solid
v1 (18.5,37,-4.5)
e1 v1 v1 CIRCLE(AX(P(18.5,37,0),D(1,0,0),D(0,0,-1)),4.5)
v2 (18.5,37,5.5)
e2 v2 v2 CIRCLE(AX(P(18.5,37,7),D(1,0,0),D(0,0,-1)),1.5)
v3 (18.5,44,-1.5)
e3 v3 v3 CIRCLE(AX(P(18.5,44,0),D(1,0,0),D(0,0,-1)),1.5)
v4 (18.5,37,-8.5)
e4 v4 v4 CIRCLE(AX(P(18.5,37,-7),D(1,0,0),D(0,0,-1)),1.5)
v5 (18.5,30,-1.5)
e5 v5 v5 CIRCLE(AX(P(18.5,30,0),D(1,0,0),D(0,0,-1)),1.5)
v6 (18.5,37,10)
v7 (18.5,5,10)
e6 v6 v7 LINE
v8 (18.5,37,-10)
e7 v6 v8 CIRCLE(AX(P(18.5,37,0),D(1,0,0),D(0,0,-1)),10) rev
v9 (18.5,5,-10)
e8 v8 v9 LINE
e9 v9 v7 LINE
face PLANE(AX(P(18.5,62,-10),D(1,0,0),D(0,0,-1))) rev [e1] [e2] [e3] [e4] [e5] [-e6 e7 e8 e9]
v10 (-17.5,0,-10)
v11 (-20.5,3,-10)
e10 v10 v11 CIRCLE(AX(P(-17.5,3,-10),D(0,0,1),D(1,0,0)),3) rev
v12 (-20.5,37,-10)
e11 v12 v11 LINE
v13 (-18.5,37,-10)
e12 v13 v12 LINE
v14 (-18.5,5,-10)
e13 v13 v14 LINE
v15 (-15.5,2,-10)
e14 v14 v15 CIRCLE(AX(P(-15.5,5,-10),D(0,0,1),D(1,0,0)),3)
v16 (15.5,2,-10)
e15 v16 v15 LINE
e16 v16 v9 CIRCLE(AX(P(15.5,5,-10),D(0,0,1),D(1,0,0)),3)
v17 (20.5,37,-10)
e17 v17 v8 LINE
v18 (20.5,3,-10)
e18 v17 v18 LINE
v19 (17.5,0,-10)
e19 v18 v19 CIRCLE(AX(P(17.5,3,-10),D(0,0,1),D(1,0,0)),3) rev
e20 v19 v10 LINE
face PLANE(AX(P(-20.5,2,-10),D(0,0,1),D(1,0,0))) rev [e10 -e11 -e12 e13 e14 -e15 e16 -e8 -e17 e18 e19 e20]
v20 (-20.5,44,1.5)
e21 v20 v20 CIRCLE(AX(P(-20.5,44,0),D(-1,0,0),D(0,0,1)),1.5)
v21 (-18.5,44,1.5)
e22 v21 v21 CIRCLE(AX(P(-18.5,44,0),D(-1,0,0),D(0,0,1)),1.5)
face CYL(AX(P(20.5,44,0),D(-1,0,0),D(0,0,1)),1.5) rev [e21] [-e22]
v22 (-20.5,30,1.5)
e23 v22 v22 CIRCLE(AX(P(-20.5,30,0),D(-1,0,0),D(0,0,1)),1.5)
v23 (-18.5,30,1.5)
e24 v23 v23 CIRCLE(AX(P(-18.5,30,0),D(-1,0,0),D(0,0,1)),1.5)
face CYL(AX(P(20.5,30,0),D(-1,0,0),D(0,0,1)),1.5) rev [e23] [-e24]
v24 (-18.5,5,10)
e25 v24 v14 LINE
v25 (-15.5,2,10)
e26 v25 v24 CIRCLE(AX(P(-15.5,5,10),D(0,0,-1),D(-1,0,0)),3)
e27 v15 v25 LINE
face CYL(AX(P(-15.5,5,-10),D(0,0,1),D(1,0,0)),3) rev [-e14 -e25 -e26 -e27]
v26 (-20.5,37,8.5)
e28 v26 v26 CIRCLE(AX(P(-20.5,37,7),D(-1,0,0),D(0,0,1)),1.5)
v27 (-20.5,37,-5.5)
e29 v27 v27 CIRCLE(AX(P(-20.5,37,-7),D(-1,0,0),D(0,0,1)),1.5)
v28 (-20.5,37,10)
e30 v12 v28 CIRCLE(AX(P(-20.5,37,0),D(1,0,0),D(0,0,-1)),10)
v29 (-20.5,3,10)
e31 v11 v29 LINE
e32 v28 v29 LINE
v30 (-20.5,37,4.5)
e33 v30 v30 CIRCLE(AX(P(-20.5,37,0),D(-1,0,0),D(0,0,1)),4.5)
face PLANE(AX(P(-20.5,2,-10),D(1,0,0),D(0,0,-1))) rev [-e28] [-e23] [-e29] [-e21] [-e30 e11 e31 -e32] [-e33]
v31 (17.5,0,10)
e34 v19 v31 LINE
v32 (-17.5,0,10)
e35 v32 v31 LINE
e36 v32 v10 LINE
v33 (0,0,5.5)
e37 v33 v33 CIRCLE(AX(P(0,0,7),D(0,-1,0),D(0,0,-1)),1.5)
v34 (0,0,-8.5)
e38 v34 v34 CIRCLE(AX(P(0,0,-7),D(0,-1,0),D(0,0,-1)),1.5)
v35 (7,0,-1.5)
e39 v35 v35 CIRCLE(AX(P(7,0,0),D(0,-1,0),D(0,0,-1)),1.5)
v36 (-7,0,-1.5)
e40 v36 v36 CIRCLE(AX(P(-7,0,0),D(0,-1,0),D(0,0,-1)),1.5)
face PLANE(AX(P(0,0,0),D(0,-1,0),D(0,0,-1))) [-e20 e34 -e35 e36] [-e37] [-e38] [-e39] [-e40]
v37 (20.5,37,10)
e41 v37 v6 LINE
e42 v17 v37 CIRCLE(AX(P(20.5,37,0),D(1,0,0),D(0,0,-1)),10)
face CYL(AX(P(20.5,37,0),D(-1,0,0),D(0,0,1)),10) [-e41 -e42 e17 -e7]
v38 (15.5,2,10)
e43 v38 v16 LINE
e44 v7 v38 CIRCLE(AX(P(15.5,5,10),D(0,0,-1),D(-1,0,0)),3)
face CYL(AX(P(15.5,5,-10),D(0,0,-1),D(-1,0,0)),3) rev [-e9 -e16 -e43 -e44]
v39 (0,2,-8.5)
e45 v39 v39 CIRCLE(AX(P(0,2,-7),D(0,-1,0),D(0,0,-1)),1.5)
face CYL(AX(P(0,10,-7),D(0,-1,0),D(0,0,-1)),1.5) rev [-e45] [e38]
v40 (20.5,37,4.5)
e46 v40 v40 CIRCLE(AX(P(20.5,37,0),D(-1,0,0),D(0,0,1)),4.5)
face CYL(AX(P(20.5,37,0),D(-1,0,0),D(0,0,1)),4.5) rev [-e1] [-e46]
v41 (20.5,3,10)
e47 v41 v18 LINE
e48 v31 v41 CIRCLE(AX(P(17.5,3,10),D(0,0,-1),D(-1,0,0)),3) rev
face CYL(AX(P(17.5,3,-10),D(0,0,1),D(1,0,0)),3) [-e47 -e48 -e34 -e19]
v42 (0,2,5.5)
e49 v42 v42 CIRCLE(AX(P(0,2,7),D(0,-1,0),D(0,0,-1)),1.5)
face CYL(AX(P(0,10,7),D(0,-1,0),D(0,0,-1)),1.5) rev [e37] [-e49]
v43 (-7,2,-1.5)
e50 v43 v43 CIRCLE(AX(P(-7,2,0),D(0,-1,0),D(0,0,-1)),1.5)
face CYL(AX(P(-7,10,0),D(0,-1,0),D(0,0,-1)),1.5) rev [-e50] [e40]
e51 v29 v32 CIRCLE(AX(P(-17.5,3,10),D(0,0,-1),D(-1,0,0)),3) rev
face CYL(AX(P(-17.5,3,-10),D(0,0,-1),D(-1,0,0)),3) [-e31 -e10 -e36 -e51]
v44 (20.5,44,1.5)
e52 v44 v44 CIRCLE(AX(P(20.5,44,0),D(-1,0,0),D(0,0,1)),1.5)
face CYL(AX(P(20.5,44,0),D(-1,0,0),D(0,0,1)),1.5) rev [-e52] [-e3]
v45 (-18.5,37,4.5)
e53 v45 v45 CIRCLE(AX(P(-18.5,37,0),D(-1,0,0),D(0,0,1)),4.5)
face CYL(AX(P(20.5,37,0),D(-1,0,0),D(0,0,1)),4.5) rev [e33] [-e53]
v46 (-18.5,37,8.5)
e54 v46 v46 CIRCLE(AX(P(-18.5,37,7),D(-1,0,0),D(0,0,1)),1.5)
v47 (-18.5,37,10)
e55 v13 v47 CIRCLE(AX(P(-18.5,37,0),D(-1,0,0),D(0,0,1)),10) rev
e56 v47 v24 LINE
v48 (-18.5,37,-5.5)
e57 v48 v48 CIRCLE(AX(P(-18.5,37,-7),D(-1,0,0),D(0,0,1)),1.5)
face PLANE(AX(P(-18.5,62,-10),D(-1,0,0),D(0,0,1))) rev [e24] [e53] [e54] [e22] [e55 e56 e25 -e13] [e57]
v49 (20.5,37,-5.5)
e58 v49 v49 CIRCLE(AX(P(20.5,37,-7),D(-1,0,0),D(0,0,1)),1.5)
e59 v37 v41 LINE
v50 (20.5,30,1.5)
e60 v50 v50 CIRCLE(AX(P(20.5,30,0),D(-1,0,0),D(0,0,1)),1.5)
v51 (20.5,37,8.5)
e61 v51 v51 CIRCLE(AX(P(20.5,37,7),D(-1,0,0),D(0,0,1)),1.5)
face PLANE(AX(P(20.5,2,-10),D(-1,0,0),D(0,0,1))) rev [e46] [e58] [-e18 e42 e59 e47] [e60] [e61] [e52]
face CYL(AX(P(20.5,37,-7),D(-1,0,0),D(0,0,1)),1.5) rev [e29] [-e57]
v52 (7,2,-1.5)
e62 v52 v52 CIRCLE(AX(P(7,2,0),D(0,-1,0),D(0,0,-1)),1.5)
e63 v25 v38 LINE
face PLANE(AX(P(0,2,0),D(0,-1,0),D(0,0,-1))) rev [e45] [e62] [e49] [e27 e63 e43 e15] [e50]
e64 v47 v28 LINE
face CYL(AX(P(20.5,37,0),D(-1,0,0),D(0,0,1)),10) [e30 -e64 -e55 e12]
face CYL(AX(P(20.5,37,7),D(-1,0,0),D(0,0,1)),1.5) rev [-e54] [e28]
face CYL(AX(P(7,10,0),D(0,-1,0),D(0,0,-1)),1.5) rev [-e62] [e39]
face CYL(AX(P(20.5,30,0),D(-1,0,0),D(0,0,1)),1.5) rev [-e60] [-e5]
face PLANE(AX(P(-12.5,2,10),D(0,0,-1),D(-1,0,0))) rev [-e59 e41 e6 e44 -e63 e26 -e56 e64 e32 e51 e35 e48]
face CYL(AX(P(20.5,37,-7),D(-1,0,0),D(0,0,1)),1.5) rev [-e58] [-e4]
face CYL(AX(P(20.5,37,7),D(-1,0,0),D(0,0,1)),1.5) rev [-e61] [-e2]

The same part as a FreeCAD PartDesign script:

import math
import FreeCAD as App
import Part
import Sketcher

V = App.Vector
Q = App.Units.Quantity


def edges_at(feature, points):
    """Names of the edges that pass closest to the given points."""
    edges = feature.Shape.Edges
    near = lambda p: min(range(len(edges)), key=lambda i: edges[i].distToShape(Part.Vertex(*p))[0])
    return sorted({f"Edge{near(p) + 1}" for p in points})

doc = App.newDocument("Part")
body = doc.addObject("PartDesign::Body", "Body")

# Sketch on XZ plane
sketch1 = body.newObject("Sketcher::SketchObject", "Sketch")
sketch1.AttachmentSupport = (doc.getObject("XZ_Plane"), [""])
sketch1.MapMode = "FlatFace"
sketch1.addGeometry(Part.LineSegment(V(20.5, -10, 0), V(-20.5, -10, 0)), False)
sketch1.addGeometry(Part.LineSegment(V(-20.5, -10, 0), V(-20.5, 10, 0)), False)
sketch1.addGeometry(Part.LineSegment(V(-20.5, 10, 0), V(20.5, 10, 0)), False)
sketch1.addGeometry(Part.LineSegment(V(20.5, 10, 0), V(20.5, -10, 0)), False)
sketch1.addConstraint(Sketcher.Constraint("Coincident", 0, 2, 1, 1))
sketch1.addConstraint(Sketcher.Constraint("Coincident", 1, 2, 2, 1))
sketch1.addConstraint(Sketcher.Constraint("Coincident", 2, 2, 3, 1))
sketch1.addConstraint(Sketcher.Constraint("Coincident", 3, 2, 0, 1))
sketch1.addConstraint(Sketcher.Constraint("Horizontal", 0))
sketch1.addConstraint(Sketcher.Constraint("Vertical", 1))
sketch1.addConstraint(Sketcher.Constraint("Horizontal", 2))
sketch1.addConstraint(Sketcher.Constraint("Vertical", 3))
sketch1.addConstraint(Sketcher.Constraint("Symmetric", 0, 2, 2, 2, -1, 1))
sketch1.addConstraint(Sketcher.Constraint("DistanceX", 0, 2, 0, 1, Q("41 mm")))
sketch1.addConstraint(Sketcher.Constraint("DistanceY", 1, 1, 1, 2, Q("20 mm")))
pad1 = body.newObject("PartDesign::Pad", "Pad")
pad1.Profile = sketch1
pad1.Length = 2
pad1.Reversed = True

# Sketch on XZ plane
sketch2 = body.newObject("Sketcher::SketchObject", "Sketch001")
sketch2.AttachmentSupport = (doc.getObject("XZ_Plane"), [""])
sketch2.MapMode = "FlatFace"
sketch2.AttachmentOffset = App.Placement(V(0, 0, -2), App.Rotation())
sketch2.addGeometry(Part.LineSegment(V(-20.5, -10, 0), V(-20.5, 10, 0)), False)
sketch2.addGeometry(Part.LineSegment(V(-20.5, 10, 0), V(-18.5, 10, 0)), False)
sketch2.addGeometry(Part.LineSegment(V(-18.5, 10, 0), V(-18.5, -10, 0)), False)
sketch2.addGeometry(Part.LineSegment(V(-18.5, -10, 0), V(-20.5, -10, 0)), False)
sketch2.addGeometry(Part.LineSegment(V(18.5, -10, 0), V(18.5, 10, 0)), False)
sketch2.addGeometry(Part.LineSegment(V(18.5, 10, 0), V(20.5, 10, 0)), False)
sketch2.addGeometry(Part.LineSegment(V(20.5, 10, 0), V(20.5, -10, 0)), False)
sketch2.addGeometry(Part.LineSegment(V(20.5, -10, 0), V(18.5, -10, 0)), False)
sketch2.addConstraint(Sketcher.Constraint("Coincident", 0, 2, 1, 1))
sketch2.addConstraint(Sketcher.Constraint("Coincident", 1, 2, 2, 1))
sketch2.addConstraint(Sketcher.Constraint("Coincident", 2, 2, 3, 1))
sketch2.addConstraint(Sketcher.Constraint("Coincident", 3, 2, 0, 1))
sketch2.addConstraint(Sketcher.Constraint("Coincident", 4, 2, 5, 1))
sketch2.addConstraint(Sketcher.Constraint("Coincident", 5, 2, 6, 1))
sketch2.addConstraint(Sketcher.Constraint("Coincident", 6, 2, 7, 1))
sketch2.addConstraint(Sketcher.Constraint("Coincident", 7, 2, 4, 1))
sketch2.addConstraint(Sketcher.Constraint("Vertical", 0))
sketch2.addConstraint(Sketcher.Constraint("Horizontal", 1))
sketch2.addConstraint(Sketcher.Constraint("Vertical", 2))
sketch2.addConstraint(Sketcher.Constraint("Horizontal", 3))
sketch2.addConstraint(Sketcher.Constraint("Vertical", 4))
sketch2.addConstraint(Sketcher.Constraint("Horizontal", 5))
sketch2.addConstraint(Sketcher.Constraint("Vertical", 6))
sketch2.addConstraint(Sketcher.Constraint("Horizontal", 7))
sketch2.addConstraint(Sketcher.Constraint("Symmetric", 2, 2, 4, 2, -1, 1))
sketch2.addConstraint(Sketcher.Constraint("Symmetric", 0, 2, 6, 2, -1, 1))
sketch2.addConstraint(Sketcher.Constraint("Horizontal", 1, 2, 4, 2))
sketch2.addConstraint(Sketcher.Constraint("DistanceX", 1, 1, 1, 2, Q("2 mm")))
sketch2.addConstraint(Sketcher.Constraint("DistanceY", 0, 1, 0, 2, Q("20 mm")))
sketch2.addConstraint(Sketcher.Constraint("DistanceX", 1, 2, 4, 2, Q("37 mm")))
pad2 = body.newObject("PartDesign::Pad", "Pad001")
pad2.Profile = sketch2
pad2.Length = 60
pad2.Reversed = True
doc.recompute()

fillet = body.newObject("PartDesign::Fillet", "Fillet")
fillet.Base = (pad2, edges_at(pad2, [
    (20.5, 0, 0),
    (-18.5, 2, 0),
    (18.5, 2, 0),
    (-20.5, 0, 0),
]))
fillet.Radius = 3

# Sketch on YZ plane
sketch3 = body.newObject("Sketcher::SketchObject", "Sketch002")
sketch3.AttachmentSupport = (doc.getObject("YZ_Plane"), [""])
sketch3.MapMode = "FlatFace"
sketch3.AttachmentOffset = App.Placement(V(0, 0, -20.5), App.Rotation())
sketch3.addGeometry(Part.Circle(V(37, 0, 0), V(0, 0, 1), 4.5), False)
sketch3.addGeometry(Part.Circle(V(30, 0, 0), V(0, 0, 1), 1.5), False)
sketch3.addGeometry(Part.Circle(V(37, -7, 0), V(0, 0, 1), 1.5), False)
sketch3.addGeometry(Part.Circle(V(44, 0, 0), V(0, 0, 1), 1.5), False)
sketch3.addGeometry(Part.Circle(V(37, 7, 0), V(0, 0, 1), 1.5), False)
sketch3.addGeometry(Part.LineSegment(V(62, -10, 0), V(37, -10, 0)), False)
sketch3.addGeometry(Part.ArcOfCircle(Part.Circle(V(37, 0, 0), V(0, 0, 1), 10), math.radians(-90), math.radians(90)), False)
sketch3.addGeometry(Part.LineSegment(V(37, 10, 0), V(62, 10, 0)), False)
sketch3.addGeometry(Part.LineSegment(V(62, 10, 0), V(62, -10, 0)), False)
sketch3.addConstraint(Sketcher.Constraint("Tangent", 5, 2, 6, 1))
sketch3.addConstraint(Sketcher.Constraint("Tangent", 6, 2, 7, 1))
sketch3.addConstraint(Sketcher.Constraint("Coincident", 7, 2, 8, 1))
sketch3.addConstraint(Sketcher.Constraint("Coincident", 8, 2, 5, 1))
sketch3.addConstraint(Sketcher.Constraint("Horizontal", 5))
sketch3.addConstraint(Sketcher.Constraint("Horizontal", 7))
sketch3.addConstraint(Sketcher.Constraint("Vertical", 8))
sketch3.addConstraint(Sketcher.Constraint("Coincident", 6, 3, 0, 3))
sketch3.addConstraint(Sketcher.Constraint("Equal", 1, 2))
sketch3.addConstraint(Sketcher.Constraint("Equal", 2, 3))
sketch3.addConstraint(Sketcher.Constraint("Equal", 3, 4))
sketch3.addConstraint(Sketcher.Constraint("Symmetric", 2, 3, 4, 3, -1))
sketch3.addConstraint(Sketcher.Constraint("PointOnObject", 0, 3, -1))
sketch3.addConstraint(Sketcher.Constraint("PointOnObject", 1, 3, -1))
sketch3.addConstraint(Sketcher.Constraint("PointOnObject", 3, 3, -1))
sketch3.addConstraint(Sketcher.Constraint("Vertical", 0, 3, 2, 3))
sketch3.addConstraint(Sketcher.Constraint("Diameter", 0, Q("9 mm")))
sketch3.addConstraint(Sketcher.Constraint("Diameter", 1, Q("3 mm")))
sketch3.addConstraint(Sketcher.Constraint("Radius", 6, Q("10 mm")))
sketch3.addConstraint(Sketcher.Constraint("DistanceX", 5, 2, 5, 1, Q("25 mm")))
sketch3.addConstraint(Sketcher.Constraint("DistanceX", -1, 1, 0, 3, Q("37 mm")))
sketch3.addConstraint(Sketcher.Constraint("DistanceX", -1, 1, 1, 3, Q("30 mm")))
sketch3.addConstraint(Sketcher.Constraint("DistanceY", 2, 3, -1, 1, Q("7 mm")))
sketch3.addConstraint(Sketcher.Constraint("DistanceX", -1, 1, 3, 3, Q("44 mm")))
pocket1 = body.newObject("PartDesign::Pocket", "Pocket")
pocket1.Profile = sketch3
pocket1.Type = "ThroughAll"
pocket1.Reversed = True

# Sketch on XZ plane
sketch4 = body.newObject("Sketcher::SketchObject", "Sketch003")
sketch4.AttachmentSupport = (doc.getObject("XZ_Plane"), [""])
sketch4.MapMode = "FlatFace"
sketch4.addGeometry(Part.Circle(V(-7, 0, 0), V(0, 0, 1), 1.5), False)
sketch4.addGeometry(Part.Circle(V(0, 7, 0), V(0, 0, 1), 1.5), False)
sketch4.addGeometry(Part.Circle(V(7, 0, 0), V(0, 0, 1), 1.5), False)
sketch4.addGeometry(Part.Circle(V(0, -7, 0), V(0, 0, 1), 1.5), False)
sketch4.addConstraint(Sketcher.Constraint("Equal", 0, 1))
sketch4.addConstraint(Sketcher.Constraint("Equal", 1, 2))
sketch4.addConstraint(Sketcher.Constraint("Equal", 2, 3))
sketch4.addConstraint(Sketcher.Constraint("Symmetric", 0, 3, 2, 3, -1, 1))
sketch4.addConstraint(Sketcher.Constraint("Symmetric", 1, 3, 3, 3, -1, 1))
sketch4.addConstraint(Sketcher.Constraint("PointOnObject", 0, 3, -1))
sketch4.addConstraint(Sketcher.Constraint("PointOnObject", 1, 3, -2))
sketch4.addConstraint(Sketcher.Constraint("Diameter", 0, Q("3 mm")))
sketch4.addConstraint(Sketcher.Constraint("DistanceX", 0, 3, -1, 1, Q("7 mm")))
sketch4.addConstraint(Sketcher.Constraint("DistanceY", -1, 1, 1, 3, Q("7 mm")))
pocket2 = body.newObject("PartDesign::Pocket", "Pocket001")
pocket2.Profile = sketch4
pocket2.Length = 10

doc.recompute()
